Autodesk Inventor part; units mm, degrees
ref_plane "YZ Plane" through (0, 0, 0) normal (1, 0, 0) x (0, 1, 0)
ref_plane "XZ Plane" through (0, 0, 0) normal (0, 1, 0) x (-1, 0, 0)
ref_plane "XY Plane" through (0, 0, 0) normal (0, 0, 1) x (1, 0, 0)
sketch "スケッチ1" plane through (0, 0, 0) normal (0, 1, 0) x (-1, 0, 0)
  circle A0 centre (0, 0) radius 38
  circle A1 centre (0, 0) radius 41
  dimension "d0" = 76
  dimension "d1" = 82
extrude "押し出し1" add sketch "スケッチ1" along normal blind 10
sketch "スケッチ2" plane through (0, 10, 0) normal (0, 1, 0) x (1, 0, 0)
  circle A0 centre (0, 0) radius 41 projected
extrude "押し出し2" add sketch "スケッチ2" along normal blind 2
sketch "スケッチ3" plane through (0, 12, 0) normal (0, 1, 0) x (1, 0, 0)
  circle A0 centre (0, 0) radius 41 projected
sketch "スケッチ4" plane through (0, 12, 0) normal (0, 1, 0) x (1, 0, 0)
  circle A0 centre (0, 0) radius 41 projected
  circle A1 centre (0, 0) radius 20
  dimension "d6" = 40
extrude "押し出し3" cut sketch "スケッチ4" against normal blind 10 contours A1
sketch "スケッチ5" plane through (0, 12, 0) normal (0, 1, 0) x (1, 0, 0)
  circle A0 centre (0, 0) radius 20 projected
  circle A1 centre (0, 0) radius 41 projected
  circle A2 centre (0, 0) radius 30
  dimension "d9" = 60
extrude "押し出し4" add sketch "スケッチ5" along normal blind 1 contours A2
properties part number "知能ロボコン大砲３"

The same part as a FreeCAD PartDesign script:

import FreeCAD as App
import Part
import Sketcher

doc = App.newDocument("Part")
body = doc.addObject("PartDesign::Body", "Body")

# Sketch on XZ plane
sketch1 = body.newObject("Sketcher::SketchObject", "Sketch")
sketch1.AttachmentSupport = (doc.getObject("XZ_Plane"), [""])
sketch1.MapMode = "FlatFace"
sketch1.addGeometry([
    Part.Circle(App.Vector(0, 0, 0), App.Vector(0, 0, 1), 41),
    Part.Circle(App.Vector(0, 0, 0), App.Vector(0, 0, 1), 38),
], False)
sketch1.addConstraint([
    Sketcher.Constraint("Coincident", 0, 3, -1, 1),
    Sketcher.Constraint("Coincident", 1, 3, -1, 1),
    Sketcher.Constraint("Diameter", 0, 82.0),
    Sketcher.Constraint("Diameter", 1, 76.0),
])
pad1 = body.newObject("PartDesign::Pad", "Pad")
pad1.Profile = sketch1
pad1.Length = 10
pad1.Reversed = True

# Sketch on XZ plane
sketch2 = body.newObject("Sketcher::SketchObject", "Sketch001")
sketch2.AttachmentSupport = (doc.getObject("XZ_Plane"), [""])
sketch2.MapMode = "FlatFace"
sketch2.AttachmentOffset = App.Placement(App.Vector(0, 0, -10), App.Rotation())
sketch2.addGeometry(Part.Circle(App.Vector(0, 0, 0), App.Vector(0, 0, 1), 41), False)
sketch2.addConstraint([
    Sketcher.Constraint("Coincident", 0, 3, -1, 1),
    Sketcher.Constraint("Diameter", 0, 82.0),
])
pad2 = body.newObject("PartDesign::Pad", "Pad001")
pad2.Profile = sketch2
pad2.Length = 2
pad2.Reversed = True

# Sketch on XZ plane
sketch3 = body.newObject("Sketcher::SketchObject", "Sketch002")
sketch3.AttachmentSupport = (doc.getObject("XZ_Plane"), [""])
sketch3.MapMode = "FlatFace"
sketch3.AttachmentOffset = App.Placement(App.Vector(0, 0, -12), App.Rotation())
sketch3.addGeometry(Part.Circle(App.Vector(0, 0, 0), App.Vector(0, 0, 1), 20), False)
sketch3.addConstraint([
    Sketcher.Constraint("Coincident", 0, 3, -1, 1),
    Sketcher.Constraint("Diameter", 0, 40.0),
])
pocket1 = body.newObject("PartDesign::Pocket", "Pocket")
pocket1.Profile = sketch3
pocket1.Length = 10
pocket1.Reversed = True

# Sketch on XZ plane
sketch4 = body.newObject("Sketcher::SketchObject", "Sketch003")
sketch4.AttachmentSupport = (doc.getObject("XZ_Plane"), [""])
sketch4.MapMode = "FlatFace"
sketch4.AttachmentOffset = App.Placement(App.Vector(0, 0, -12), App.Rotation())
sketch4.addGeometry([
    Part.Circle(App.Vector(0, 0, 0), App.Vector(0, 0, 1), 30),
    Part.Circle(App.Vector(0, 0, 0), App.Vector(0, 0, 1), 20),
], False)
sketch4.addConstraint([
    Sketcher.Constraint("Coincident", 0, 3, -1, 1),
    Sketcher.Constraint("Coincident", 1, 3, -1, 1),
    Sketcher.Constraint("Diameter", 0, 60.0),
    Sketcher.Constraint("Diameter", 1, 40.0),
])
pad3 = body.newObject("PartDesign::Pad", "Pad002")
pad3.Profile = sketch4
pad3.Length = 1
pad3.Reversed = True

doc.recompute()
